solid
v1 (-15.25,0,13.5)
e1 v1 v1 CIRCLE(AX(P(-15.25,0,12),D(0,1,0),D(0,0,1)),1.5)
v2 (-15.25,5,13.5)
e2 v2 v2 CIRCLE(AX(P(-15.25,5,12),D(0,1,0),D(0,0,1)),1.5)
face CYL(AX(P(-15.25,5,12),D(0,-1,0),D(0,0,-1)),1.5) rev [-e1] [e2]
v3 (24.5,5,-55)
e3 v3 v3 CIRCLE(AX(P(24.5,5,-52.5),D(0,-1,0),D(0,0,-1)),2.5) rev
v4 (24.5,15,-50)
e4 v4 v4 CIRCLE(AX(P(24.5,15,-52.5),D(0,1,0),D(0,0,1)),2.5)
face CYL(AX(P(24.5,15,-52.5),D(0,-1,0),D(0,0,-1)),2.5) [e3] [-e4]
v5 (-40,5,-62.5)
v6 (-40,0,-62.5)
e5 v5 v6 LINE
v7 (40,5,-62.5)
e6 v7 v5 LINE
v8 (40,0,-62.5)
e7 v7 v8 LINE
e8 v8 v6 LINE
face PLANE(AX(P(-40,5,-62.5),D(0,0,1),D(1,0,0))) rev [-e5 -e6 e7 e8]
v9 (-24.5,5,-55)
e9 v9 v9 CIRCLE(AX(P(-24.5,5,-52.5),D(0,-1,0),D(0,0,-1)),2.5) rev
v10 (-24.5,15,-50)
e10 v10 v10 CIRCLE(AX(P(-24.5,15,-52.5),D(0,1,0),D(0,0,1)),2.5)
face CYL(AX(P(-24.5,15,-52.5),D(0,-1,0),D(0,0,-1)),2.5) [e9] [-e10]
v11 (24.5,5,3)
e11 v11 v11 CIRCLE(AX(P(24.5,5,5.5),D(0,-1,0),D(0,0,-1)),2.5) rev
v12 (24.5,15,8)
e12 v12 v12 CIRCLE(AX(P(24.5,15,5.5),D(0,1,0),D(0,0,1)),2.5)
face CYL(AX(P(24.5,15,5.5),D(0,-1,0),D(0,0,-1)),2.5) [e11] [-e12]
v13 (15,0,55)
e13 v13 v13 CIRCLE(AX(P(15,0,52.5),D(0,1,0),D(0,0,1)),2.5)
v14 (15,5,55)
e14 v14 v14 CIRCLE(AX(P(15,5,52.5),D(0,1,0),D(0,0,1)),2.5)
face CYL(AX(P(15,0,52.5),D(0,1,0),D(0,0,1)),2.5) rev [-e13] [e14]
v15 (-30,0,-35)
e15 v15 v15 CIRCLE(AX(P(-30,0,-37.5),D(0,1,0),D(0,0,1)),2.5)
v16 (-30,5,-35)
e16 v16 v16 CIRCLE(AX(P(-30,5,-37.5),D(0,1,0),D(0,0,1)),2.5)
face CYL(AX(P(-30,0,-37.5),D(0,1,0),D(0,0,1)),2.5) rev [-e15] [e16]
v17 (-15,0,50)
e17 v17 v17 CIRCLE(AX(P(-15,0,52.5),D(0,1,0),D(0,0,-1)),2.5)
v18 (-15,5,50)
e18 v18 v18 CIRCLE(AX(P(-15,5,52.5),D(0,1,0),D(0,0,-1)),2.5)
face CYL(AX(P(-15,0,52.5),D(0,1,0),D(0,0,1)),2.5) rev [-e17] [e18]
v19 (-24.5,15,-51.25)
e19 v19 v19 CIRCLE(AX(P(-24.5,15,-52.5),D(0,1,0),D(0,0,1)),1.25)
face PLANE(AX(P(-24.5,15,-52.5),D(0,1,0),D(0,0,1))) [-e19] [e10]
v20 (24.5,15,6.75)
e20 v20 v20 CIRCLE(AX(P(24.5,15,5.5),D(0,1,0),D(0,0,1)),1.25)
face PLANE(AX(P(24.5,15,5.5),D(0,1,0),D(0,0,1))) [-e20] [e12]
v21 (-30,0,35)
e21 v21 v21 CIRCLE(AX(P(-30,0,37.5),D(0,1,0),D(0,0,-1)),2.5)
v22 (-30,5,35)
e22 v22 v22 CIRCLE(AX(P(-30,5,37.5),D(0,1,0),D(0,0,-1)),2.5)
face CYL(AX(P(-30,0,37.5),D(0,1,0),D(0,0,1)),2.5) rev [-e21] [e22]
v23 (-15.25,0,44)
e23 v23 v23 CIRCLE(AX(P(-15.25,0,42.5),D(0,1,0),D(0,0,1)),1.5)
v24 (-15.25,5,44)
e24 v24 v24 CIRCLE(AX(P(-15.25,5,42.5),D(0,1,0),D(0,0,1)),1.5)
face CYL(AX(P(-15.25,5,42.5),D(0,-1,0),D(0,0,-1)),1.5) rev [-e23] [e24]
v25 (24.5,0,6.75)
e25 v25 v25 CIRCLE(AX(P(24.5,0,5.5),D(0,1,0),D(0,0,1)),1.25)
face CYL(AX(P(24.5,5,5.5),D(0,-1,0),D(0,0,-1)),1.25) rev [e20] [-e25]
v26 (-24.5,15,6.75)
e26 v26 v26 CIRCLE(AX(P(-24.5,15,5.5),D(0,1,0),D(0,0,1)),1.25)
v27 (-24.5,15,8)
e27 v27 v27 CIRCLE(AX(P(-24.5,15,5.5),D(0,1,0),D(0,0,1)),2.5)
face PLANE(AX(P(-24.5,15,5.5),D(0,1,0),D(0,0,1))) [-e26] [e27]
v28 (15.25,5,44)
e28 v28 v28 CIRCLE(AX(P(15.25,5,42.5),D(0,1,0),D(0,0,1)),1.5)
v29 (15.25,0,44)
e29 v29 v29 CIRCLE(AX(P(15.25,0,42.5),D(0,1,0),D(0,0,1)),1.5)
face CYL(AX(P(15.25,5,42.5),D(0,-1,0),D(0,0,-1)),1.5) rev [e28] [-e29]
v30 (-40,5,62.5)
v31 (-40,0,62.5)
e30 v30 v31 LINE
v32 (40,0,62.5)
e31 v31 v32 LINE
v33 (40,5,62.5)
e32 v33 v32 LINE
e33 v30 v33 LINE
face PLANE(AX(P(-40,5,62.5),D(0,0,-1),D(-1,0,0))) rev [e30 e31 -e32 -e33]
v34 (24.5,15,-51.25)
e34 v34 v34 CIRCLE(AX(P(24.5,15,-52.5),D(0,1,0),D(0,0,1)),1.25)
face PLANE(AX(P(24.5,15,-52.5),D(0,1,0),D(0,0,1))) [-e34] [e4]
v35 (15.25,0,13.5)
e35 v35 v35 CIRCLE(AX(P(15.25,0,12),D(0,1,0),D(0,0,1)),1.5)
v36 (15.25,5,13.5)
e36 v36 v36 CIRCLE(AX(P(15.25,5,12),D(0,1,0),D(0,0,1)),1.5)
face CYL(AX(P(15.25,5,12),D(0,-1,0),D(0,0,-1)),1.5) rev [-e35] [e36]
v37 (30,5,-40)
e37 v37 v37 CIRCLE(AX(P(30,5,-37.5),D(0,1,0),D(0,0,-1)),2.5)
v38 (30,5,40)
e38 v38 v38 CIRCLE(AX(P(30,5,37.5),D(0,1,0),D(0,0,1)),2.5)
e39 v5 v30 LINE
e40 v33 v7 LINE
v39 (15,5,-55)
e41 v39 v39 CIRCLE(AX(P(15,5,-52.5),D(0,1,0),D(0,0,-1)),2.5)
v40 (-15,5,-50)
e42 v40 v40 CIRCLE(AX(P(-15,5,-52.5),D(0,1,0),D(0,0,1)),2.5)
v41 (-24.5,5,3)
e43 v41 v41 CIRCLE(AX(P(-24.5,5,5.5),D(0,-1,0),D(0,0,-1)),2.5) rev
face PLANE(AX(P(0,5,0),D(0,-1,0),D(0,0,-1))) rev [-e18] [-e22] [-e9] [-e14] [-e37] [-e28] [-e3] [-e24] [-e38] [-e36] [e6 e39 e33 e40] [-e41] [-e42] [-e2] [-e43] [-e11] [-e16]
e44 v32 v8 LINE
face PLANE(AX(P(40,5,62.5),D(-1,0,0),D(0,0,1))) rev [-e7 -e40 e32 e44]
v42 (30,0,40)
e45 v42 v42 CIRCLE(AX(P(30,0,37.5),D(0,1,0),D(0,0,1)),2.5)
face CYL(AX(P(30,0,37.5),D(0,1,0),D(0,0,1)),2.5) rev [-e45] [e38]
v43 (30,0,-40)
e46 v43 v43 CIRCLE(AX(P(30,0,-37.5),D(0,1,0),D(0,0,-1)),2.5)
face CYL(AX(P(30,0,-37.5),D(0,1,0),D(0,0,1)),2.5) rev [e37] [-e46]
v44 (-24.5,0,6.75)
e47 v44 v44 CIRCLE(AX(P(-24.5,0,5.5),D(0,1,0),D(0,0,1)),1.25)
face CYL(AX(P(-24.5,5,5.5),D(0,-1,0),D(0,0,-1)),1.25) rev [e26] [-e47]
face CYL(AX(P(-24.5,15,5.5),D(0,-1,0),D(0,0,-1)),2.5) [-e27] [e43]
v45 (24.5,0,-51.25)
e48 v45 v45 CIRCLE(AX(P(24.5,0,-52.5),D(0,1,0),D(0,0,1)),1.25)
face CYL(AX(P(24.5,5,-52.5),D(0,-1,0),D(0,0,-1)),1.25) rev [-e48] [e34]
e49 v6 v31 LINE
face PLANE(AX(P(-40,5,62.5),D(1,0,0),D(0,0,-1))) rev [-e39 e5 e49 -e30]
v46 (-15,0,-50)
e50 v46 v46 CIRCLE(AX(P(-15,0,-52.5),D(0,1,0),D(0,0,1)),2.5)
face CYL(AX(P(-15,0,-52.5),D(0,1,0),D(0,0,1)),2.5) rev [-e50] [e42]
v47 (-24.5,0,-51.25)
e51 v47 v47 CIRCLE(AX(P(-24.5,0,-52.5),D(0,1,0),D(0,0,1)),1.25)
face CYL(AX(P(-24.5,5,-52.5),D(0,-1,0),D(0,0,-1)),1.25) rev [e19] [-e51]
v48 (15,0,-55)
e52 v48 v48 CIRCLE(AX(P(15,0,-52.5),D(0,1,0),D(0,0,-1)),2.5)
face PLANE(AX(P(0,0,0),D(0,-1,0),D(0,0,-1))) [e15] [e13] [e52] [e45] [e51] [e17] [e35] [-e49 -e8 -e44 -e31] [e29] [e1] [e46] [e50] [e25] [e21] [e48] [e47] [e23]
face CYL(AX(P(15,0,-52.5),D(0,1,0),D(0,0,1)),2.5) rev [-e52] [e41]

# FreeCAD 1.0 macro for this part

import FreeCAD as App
import Part
import Sketcher
from FreeCAD import Vector
Q = App.Units.Quantity

doc = App.newDocument("Part")
body = doc.addObject("PartDesign::Body", "Body")

# Sketch on XZ plane
sketch1 = doc.addObject("Sketcher::SketchObject", "Sketch")
body.addObject(sketch1)
sketch1.AttachmentSupport = (doc.XZ_Plane, [""])
sketch1.MapMode = "FlatFace"
sketch1.addGeometry([
    Part.LineSegment(Vector(-40, -62.5, 0), Vector(-40, 62.5, 0)),  # 0
    Part.LineSegment(Vector(-40, 62.5, 0), Vector(40, 62.5, 0)),  # 1
    Part.LineSegment(Vector(40, 62.5, 0), Vector(40, -62.5, 0)),  # 2
    Part.LineSegment(Vector(40, -62.5, 0), Vector(-40, -62.5, 0)),  # 3
    Part.Circle(Vector(-15.2, 42.5, 0), Vector(0, 0, 1), 1.5),  # 4
    Part.Circle(Vector(-15.2, 12, 0), Vector(0, 0, 1), 1.5),  # 5
    Part.Circle(Vector(-24.5, 5.5, 0), Vector(0, 0, 1), 1.2),  # 6
    Part.Circle(Vector(15.2, 42.5, 0), Vector(0, 0, 1), 1.5),  # 7
    Part.Circle(Vector(15.2, 12, 0), Vector(0, 0, 1), 1.5),  # 8
    Part.Circle(Vector(24.5, 5.5, 0), Vector(0, 0, 1), 1.2),  # 9
    Part.Circle(Vector(-24.5, -52.5, 0), Vector(0, 0, 1), 1.2),  # 10
    Part.Circle(Vector(24.5, -52.5, 0), Vector(0, 0, 1), 1.2),  # 11
], False)
sketch1.addConstraint([
    Sketcher.Constraint("Coincident", 0, 2, 1, 1),
    Sketcher.Constraint("Coincident", 1, 2, 2, 1),
    Sketcher.Constraint("Coincident", 2, 2, 3, 1),
    Sketcher.Constraint("Coincident", 3, 2, 0, 1),
    Sketcher.Constraint("Vertical", 0),
    Sketcher.Constraint("Horizontal", 1),
    Sketcher.Constraint("Vertical", 2),
    Sketcher.Constraint("Horizontal", 3),
    Sketcher.Constraint("Equal", 4, 5),
    Sketcher.Constraint("Equal", 5, 7),
    Sketcher.Constraint("Equal", 7, 8),
    Sketcher.Constraint("Equal", 6, 9),
    Sketcher.Constraint("Equal", 9, 10),
    Sketcher.Constraint("Equal", 10, 11),
    Sketcher.Constraint("Symmetric", 0, 2, 2, 2, -1, 1),
    Sketcher.Constraint("Symmetric", 4, 3, 7, 3, -2),
    Sketcher.Constraint("Symmetric", 5, 3, 8, 3, -2),
    Sketcher.Constraint("Symmetric", 6, 3, 9, 3, -2),
    Sketcher.Constraint("Symmetric", 10, 3, 11, 3, -2),
    Sketcher.Constraint("Vertical", 4, 3, 5, 3),
    Sketcher.Constraint("Vertical", 6, 3, 10, 3),
    Sketcher.Constraint("Diameter", 4, Q("3 mm")),
    Sketcher.Constraint("Diameter", 6, Q("2.5 mm")),
    Sketcher.Constraint("DistanceX", 1, 1, 1, 2, Q("80 mm")),
    Sketcher.Constraint("DistanceY", 0, 1, 0, 2, Q("125 mm")),
    Sketcher.Constraint("DistanceY", -1, 1, 5, 3, Q("12 mm")),
    Sketcher.Constraint("DistanceY", 6, 3, 4, 3, Q("37 mm")),
    Sketcher.Constraint("DistanceX", 6, 3, 9, 3, Q("49 mm")),
    Sketcher.Constraint("DistanceY", 10, 3, 6, 3, Q("58 mm")),
    Sketcher.Constraint("DistanceY", 4, 3, 0, 2, Q("20 mm")),
    Sketcher.Constraint("DistanceX", 4, 3, 7, 3, Q("30.5 mm")),
])
pad1 = doc.addObject("PartDesign::Pad", "Pad")
body.addObject(pad1)
pad1.Profile = sketch1
pad1.Length = 5
pad1.Reversed = True

# Sketch on XZ plane
sketch2 = doc.addObject("Sketcher::SketchObject", "Sketch001")
body.addObject(sketch2)
sketch2.AttachmentSupport = (doc.XZ_Plane, [""])
sketch2.MapMode = "FlatFace"
sketch2.AttachmentOffset = App.Placement(Vector(0, 0, -5), App.Rotation())
sketch2.addGeometry([
    Part.Circle(Vector(-15, -52.5, 0), Vector(0, 0, 1), 2.5),  # 0
    Part.Circle(Vector(-30, -37.5, 0), Vector(0, 0, 1), 2.5),  # 1
    Part.Circle(Vector(15, -52.5, 0), Vector(0, 0, 1), 2.5),  # 2
    Part.Circle(Vector(30, -37.5, 0), Vector(0, 0, 1), 2.5),  # 3
    Part.Circle(Vector(30, 37.5, 0), Vector(0, 0, 1), 2.5),  # 4
    Part.Circle(Vector(15, 52.5, 0), Vector(0, 0, 1), 2.5),  # 5
    Part.Circle(Vector(-15, 52.5, 0), Vector(0, 0, 1), 2.5),  # 6
    Part.Circle(Vector(-30, 37.5, 0), Vector(0, 0, 1), 2.5),  # 7
], False)
sketch2.addConstraint([
    Sketcher.Constraint("Equal", 0, 1),
    Sketcher.Constraint("Equal", 1, 2),
    Sketcher.Constraint("Equal", 2, 3),
    Sketcher.Constraint("Equal", 3, 4),
    Sketcher.Constraint("Equal", 4, 5),
    Sketcher.Constraint("Equal", 5, 6),
    Sketcher.Constraint("Equal", 6, 7),
    Sketcher.Constraint("Symmetric", 1, 3, 4, 3, -1, 1),
    Sketcher.Constraint("Symmetric", 0, 3, 5, 3, -1, 1),
    Sketcher.Constraint("Symmetric", 2, 3, 6, 3, -1, 1),
    Sketcher.Constraint("Symmetric", 3, 3, 7, 3, -1, 1),
    Sketcher.Constraint("Symmetric", 0, 3, 2, 3, -2),
    Sketcher.Constraint("Symmetric", 1, 3, 3, 3, -2),
    Sketcher.Constraint("Diameter", 0, Q("5 mm")),
    Sketcher.Constraint("DistanceX", 0, 3, -1, 1, Q("15 mm")),
    Sketcher.Constraint("DistanceX", 1, 3, -1, 1, Q("30 mm")),
    Sketcher.Constraint("DistanceY", 0, 3, 1, 3, Q("15 mm")),
    Sketcher.Constraint("DistanceY", 3, 3, 4, 3, Q("75 mm")),
])
pocket1 = doc.addObject("PartDesign::Pocket", "Pocket")
body.addObject(pocket1)
pocket1.Profile = sketch2
pocket1.Length = 5
pocket1.Reversed = True

# Sketch on XZ plane
sketch3 = doc.addObject("Sketcher::SketchObject", "Sketch002")
body.addObject(sketch3)
sketch3.AttachmentSupport = (doc.XZ_Plane, [""])
sketch3.MapMode = "FlatFace"
sketch3.AttachmentOffset = App.Placement(Vector(0, 0, -5), App.Rotation())
sketch3.addGeometry([
    Part.Circle(Vector(-24.5, -52.5, 0), Vector(0, 0, 1), 2.5),  # 0
    Part.Circle(Vector(-24.5, -52.5, 0), Vector(0, 0, 1), 1.2),  # 1
    Part.Circle(Vector(24.5, -52.5, 0), Vector(0, 0, 1), 2.5),  # 2
    Part.Circle(Vector(24.5, -52.5, 0), Vector(0, 0, 1), 1.2),  # 3
    Part.Circle(Vector(-24.5, 5.5, 0), Vector(0, 0, 1), 2.5),  # 4
    Part.Circle(Vector(-24.5, 5.5, 0), Vector(0, 0, 1), 1.2),  # 5
    Part.Circle(Vector(24.5, 5.5, 0), Vector(0, 0, 1), 2.5),  # 6
    Part.Circle(Vector(24.5, 5.5, 0), Vector(0, 0, 1), 1.2),  # 7
], False)
sketch3.addConstraint([
    Sketcher.Constraint("Coincident", 1, 3, 0, 3),
    Sketcher.Constraint("Coincident", 3, 3, 2, 3),
    Sketcher.Constraint("Coincident", 5, 3, 4, 3),
    Sketcher.Constraint("Coincident", 7, 3, 6, 3),
    Sketcher.Constraint("Equal", 0, 2),
    Sketcher.Constraint("Equal", 1, 3),
    Sketcher.Constraint("Equal", 2, 4),
    Sketcher.Constraint("Equal", 3, 5),
    Sketcher.Constraint("Equal", 4, 6),
    Sketcher.Constraint("Equal", 5, 7),
    Sketcher.Constraint("Symmetric", 0, 3, 2, 3, -2),
    Sketcher.Constraint("Symmetric", 4, 3, 6, 3, -2),
    Sketcher.Constraint("Vertical", 1, 3, 4, 3),
    Sketcher.Constraint("Diameter", 0, Q("5 mm")),
    Sketcher.Constraint("Diameter", 1, Q("2.5 mm")),
    Sketcher.Constraint("DistanceX", 0, 3, 2, 3, Q("49 mm")),
    Sketcher.Constraint("DistanceY", 0, 3, 4, 3, Q("58 mm")),
    Sketcher.Constraint("DistanceY", 0, 3, -1, 1, Q("52.5 mm")),
])
pad2 = doc.addObject("PartDesign::Pad", "Pad001")
body.addObject(pad2)
pad2.Profile = sketch3
pad2.Length = 10
pad2.Reversed = True

doc.recompute()
